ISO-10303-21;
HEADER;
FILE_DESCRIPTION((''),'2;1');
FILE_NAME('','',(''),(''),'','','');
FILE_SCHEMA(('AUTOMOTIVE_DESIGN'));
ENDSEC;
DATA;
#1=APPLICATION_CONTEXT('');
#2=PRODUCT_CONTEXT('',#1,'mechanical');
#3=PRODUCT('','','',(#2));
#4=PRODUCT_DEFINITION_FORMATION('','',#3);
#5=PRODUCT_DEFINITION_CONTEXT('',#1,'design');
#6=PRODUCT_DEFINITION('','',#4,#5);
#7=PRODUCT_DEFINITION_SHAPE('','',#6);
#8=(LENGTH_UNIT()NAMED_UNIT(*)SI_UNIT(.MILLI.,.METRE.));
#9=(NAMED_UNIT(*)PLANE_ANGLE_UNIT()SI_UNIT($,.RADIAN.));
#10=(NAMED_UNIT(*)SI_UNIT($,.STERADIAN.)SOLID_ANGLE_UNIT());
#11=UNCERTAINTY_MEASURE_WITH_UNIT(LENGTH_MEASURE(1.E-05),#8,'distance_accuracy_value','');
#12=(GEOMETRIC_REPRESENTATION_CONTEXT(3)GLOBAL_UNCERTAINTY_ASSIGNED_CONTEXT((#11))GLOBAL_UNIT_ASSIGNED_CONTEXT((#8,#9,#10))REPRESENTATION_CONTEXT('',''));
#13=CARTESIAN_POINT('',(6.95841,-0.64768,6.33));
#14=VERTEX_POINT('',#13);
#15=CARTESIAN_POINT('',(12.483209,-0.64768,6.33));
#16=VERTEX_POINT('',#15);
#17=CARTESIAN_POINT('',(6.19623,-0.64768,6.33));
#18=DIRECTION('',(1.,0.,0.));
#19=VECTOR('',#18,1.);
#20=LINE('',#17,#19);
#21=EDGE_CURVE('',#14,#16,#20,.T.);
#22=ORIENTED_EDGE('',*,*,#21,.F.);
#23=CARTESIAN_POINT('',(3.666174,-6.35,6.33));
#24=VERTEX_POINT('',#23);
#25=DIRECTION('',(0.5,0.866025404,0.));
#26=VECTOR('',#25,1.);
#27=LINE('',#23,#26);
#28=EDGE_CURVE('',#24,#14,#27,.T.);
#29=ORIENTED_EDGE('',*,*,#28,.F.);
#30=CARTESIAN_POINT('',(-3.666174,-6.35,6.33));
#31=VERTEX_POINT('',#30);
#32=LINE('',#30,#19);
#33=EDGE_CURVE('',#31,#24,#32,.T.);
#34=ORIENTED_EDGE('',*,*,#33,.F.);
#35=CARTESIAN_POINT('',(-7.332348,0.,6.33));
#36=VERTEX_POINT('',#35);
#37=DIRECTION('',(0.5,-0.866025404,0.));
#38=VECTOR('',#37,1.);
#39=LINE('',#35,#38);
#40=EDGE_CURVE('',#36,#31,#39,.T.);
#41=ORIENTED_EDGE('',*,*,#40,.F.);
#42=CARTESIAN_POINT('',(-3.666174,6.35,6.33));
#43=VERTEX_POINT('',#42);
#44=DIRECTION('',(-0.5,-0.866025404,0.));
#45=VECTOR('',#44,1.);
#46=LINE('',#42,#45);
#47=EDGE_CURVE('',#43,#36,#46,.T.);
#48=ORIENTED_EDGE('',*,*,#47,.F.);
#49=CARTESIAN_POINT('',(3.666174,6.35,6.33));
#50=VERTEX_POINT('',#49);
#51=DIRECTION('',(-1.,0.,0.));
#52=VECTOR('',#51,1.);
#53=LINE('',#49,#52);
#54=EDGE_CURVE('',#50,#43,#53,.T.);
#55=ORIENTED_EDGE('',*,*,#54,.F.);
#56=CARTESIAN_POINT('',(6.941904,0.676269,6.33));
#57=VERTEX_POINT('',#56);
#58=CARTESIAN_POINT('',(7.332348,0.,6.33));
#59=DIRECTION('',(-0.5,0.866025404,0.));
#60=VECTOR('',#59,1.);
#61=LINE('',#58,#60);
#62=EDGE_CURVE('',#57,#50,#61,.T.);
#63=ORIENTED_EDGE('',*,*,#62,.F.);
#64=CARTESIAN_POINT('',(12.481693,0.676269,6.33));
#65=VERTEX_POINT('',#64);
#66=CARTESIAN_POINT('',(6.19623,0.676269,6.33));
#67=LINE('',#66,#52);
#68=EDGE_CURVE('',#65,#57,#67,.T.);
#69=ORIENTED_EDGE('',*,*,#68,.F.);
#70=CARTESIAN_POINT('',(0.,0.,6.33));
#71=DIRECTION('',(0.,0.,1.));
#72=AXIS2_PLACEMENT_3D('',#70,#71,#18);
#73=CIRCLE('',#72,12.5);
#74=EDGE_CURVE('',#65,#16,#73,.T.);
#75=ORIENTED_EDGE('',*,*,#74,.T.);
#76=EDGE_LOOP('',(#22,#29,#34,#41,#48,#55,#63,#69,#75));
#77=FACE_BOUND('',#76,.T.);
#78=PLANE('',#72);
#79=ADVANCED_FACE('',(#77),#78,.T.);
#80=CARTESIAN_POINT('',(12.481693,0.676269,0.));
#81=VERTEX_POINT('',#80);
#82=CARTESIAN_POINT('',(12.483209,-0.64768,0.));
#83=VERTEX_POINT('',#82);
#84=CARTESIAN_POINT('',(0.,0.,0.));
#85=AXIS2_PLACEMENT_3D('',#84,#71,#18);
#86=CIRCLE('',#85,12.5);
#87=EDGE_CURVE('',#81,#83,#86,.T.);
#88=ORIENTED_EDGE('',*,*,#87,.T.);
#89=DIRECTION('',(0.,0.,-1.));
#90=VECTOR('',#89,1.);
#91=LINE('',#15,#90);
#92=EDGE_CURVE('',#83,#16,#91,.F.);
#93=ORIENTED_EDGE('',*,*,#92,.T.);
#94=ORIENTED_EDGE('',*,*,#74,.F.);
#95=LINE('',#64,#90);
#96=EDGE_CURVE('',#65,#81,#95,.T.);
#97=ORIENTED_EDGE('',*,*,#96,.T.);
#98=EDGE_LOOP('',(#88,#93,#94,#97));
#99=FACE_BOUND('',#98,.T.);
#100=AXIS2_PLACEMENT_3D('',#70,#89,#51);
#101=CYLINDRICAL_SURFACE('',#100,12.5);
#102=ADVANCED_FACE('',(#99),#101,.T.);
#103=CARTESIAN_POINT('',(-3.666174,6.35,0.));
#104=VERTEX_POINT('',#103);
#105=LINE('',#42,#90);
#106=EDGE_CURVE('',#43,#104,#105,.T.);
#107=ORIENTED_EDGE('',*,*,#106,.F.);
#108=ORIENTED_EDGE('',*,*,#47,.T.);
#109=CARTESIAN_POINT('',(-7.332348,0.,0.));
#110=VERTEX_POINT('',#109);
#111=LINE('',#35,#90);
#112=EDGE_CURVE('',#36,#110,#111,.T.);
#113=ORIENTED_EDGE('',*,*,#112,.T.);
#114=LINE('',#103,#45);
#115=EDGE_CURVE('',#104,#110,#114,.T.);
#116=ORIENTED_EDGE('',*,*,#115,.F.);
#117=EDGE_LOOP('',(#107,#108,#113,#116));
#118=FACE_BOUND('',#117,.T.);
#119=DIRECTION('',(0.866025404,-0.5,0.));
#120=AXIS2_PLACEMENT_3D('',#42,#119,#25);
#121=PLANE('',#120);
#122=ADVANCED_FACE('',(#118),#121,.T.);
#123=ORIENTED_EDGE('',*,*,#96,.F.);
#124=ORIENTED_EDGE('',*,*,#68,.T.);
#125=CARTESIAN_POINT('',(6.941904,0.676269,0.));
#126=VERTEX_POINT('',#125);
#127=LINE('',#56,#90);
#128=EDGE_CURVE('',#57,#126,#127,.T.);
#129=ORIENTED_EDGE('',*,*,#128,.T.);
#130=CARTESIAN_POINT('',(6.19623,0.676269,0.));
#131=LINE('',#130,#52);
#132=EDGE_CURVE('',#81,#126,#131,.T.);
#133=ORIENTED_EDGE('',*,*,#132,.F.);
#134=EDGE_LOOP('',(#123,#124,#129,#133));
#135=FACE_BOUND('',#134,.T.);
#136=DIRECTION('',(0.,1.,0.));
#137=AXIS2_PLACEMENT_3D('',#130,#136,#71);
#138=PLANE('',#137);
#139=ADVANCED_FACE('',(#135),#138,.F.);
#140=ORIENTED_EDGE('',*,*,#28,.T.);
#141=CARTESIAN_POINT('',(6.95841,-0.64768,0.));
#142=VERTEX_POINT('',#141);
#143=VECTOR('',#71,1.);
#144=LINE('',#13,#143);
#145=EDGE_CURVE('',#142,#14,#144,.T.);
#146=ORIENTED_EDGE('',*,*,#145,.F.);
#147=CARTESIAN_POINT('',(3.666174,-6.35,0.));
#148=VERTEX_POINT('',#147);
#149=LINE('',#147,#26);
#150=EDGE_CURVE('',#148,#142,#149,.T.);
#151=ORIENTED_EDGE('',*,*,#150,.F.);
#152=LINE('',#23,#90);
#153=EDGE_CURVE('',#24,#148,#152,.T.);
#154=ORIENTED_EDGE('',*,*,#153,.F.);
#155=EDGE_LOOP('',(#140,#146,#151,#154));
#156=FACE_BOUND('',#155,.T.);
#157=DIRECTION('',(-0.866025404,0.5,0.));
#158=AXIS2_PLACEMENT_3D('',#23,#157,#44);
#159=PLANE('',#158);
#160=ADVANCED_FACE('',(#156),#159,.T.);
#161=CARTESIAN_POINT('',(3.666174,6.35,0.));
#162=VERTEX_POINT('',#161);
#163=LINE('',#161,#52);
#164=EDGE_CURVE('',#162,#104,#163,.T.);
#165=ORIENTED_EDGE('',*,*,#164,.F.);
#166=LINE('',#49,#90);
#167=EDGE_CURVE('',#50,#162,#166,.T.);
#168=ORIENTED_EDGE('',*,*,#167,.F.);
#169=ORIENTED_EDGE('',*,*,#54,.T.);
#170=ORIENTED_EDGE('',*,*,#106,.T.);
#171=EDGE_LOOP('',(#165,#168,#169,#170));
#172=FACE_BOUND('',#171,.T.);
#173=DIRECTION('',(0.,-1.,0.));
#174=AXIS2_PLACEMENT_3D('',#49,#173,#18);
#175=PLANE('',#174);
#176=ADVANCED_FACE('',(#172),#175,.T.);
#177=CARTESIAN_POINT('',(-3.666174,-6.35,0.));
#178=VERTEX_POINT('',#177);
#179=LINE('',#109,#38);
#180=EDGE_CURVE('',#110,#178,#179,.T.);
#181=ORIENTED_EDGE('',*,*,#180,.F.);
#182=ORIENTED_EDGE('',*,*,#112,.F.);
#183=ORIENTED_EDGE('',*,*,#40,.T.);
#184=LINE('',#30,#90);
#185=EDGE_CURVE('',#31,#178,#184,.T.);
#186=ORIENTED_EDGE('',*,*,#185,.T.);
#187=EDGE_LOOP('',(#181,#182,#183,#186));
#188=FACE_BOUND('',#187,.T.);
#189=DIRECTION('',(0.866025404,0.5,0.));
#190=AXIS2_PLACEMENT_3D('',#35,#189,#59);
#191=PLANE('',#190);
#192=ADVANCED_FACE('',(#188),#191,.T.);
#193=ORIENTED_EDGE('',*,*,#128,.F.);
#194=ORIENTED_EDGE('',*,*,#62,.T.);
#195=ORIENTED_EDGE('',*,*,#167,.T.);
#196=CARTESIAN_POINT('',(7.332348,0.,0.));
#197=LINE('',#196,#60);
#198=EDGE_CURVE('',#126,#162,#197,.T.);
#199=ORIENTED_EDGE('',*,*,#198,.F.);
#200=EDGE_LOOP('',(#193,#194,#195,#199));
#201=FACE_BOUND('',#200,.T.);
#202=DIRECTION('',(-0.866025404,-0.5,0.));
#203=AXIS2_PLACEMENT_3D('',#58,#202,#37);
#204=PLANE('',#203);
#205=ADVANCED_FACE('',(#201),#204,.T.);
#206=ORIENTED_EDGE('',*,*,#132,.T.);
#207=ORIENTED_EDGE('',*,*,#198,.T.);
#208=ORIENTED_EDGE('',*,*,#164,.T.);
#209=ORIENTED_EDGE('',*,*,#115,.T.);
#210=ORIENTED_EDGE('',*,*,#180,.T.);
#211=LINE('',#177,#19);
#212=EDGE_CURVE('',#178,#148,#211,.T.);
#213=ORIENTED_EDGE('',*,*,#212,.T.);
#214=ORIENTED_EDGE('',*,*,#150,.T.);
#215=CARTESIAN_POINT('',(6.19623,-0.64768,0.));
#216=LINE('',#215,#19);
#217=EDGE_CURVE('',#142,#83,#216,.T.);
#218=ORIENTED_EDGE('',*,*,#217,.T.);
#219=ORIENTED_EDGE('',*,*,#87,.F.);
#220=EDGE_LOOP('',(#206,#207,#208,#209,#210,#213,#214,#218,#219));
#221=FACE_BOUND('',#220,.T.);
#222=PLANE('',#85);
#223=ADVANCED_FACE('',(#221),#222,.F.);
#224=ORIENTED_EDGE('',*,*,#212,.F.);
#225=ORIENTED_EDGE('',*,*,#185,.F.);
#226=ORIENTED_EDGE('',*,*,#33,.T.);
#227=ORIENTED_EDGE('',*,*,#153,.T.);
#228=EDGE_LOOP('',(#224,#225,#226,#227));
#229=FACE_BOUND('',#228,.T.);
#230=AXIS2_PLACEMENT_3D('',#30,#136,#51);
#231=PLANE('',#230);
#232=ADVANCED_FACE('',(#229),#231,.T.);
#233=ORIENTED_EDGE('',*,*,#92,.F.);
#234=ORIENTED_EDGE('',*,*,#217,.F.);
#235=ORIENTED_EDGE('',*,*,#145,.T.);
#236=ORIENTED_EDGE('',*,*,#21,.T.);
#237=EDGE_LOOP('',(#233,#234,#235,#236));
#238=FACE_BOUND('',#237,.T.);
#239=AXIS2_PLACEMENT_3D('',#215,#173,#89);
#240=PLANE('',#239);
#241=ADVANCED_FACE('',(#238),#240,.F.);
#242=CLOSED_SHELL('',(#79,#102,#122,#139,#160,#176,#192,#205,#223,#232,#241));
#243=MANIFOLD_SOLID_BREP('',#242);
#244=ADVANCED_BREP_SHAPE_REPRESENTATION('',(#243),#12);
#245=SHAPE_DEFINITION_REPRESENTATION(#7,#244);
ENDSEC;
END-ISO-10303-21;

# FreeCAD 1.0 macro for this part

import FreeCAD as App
import Part
import Sketcher

V = App.Vector
Q = App.Units.Quantity

doc = App.newDocument("Part")
body = doc.addObject("PartDesign::Body", "Body")

# Sketch on XY plane
sketch1 = body.newObject("Sketcher::SketchObject", "Sketch")
sketch1.AttachmentSupport = (doc.getObject("XY_Plane"), [""])
sketch1.MapMode = "FlatFace"
sketch1.addGeometry(Part.Circle(V(0, 0, 0), V(0, 0, 1), 12), False)
sketch1.addGeometry(Part.LineSegment(V(4, 6, 0), V(7, 0, 0)), False)
sketch1.addGeometry(Part.LineSegment(V(7, 0, 0), V(4, -6, 0)), False)
sketch1.addGeometry(Part.LineSegment(V(4, -6, 0), V(-4, -6, 0)), False)
sketch1.addGeometry(Part.LineSegment(V(-4, -6, 0), V(-7, 0, 0)), False)
sketch1.addGeometry(Part.LineSegment(V(-7, 0, 0), V(-4, 6, 0)), False)
sketch1.addGeometry(Part.LineSegment(V(-4, 6, 0), V(4, 6, 0)), False)
sketch1.addConstraint(Sketcher.Constraint("Coincident", 1, 2, 2, 1))
sketch1.addConstraint(Sketcher.Constraint("Coincident", 2, 2, 3, 1))
sketch1.addConstraint(Sketcher.Constraint("Coincident", 3, 2, 4, 1))
sketch1.addConstraint(Sketcher.Constraint("Coincident", 4, 2, 5, 1))
sketch1.addConstraint(Sketcher.Constraint("Coincident", 5, 2, 6, 1))
sketch1.addConstraint(Sketcher.Constraint("Coincident", 6, 2, 1, 1))
sketch1.addConstraint(Sketcher.Constraint("Horizontal", 3))
sketch1.addConstraint(Sketcher.Constraint("Horizontal", 6))
sketch1.addConstraint(Sketcher.Constraint("Coincident", 0, 3, -1, 1))
sketch1.addConstraint(Sketcher.Constraint("Symmetric", 1, 2, 4, 2, -1, 1))
sketch1.addConstraint(Sketcher.Constraint("Symmetric", 2, 2, 5, 2, -1, 1))
sketch1.addConstraint(Sketcher.Constraint("PointOnObject", 1, 2, -1))
sketch1.addConstraint(Sketcher.Constraint("Parallel", 1, 4))
sketch1.addConstraint(Sketcher.Constraint("Vertical", 3, 2, 5, 2))
sketch1.addConstraint(Sketcher.Constraint("Diameter", 0, 25.0))
sketch1.addConstraint(Sketcher.Constraint("Angle", 1, Q("-60 deg")))
sketch1.addConstraint(Sketcher.Constraint("DistanceY", 3, 2, 5, 2, 12.7))
sketch1.addConstraint(Sketcher.Constraint("DistanceX", 3, 2, 3, 1, 7.332348))
pad1 = body.newObject("PartDesign::Pad", "Pad")
pad1.Profile = sketch1
pad1.Length = 6.33

# Sketch on XY plane
sketch2 = body.newObject("Sketcher::SketchObject", "Sketch001")
sketch2.AttachmentSupport = (doc.getObject("XY_Plane"), [""])
sketch2.MapMode = "FlatFace"
sketch2.AttachmentOffset = App.Placement(V(0, 0, 6.33), App.Rotation())
sketch2.addGeometry(Part.LineSegment(V(6.2, 0.7, 0), V(6.2, -0.6, 0)), False)
sketch2.addGeometry(Part.LineSegment(V(6.2, -0.6, 0), V(14.7, -0.6, 0)), False)
sketch2.addGeometry(Part.LineSegment(V(14.7, -0.6, 0), V(14.7, 0.7, 0)), False)
sketch2.addGeometry(Part.LineSegment(V(14.7, 0.7, 0), V(6.2, 0.7, 0)), False)
sketch2.addConstraint(Sketcher.Constraint("Coincident", 0, 2, 1, 1))
sketch2.addConstraint(Sketcher.Constraint("Coincident", 1, 2, 2, 1))
sketch2.addConstraint(Sketcher.Constraint("Coincident", 2, 2, 3, 1))
sketch2.addConstraint(Sketcher.Constraint("Coincident", 3, 2, 0, 1))
sketch2.addConstraint(Sketcher.Constraint("Vertical", 0))
sketch2.addConstraint(Sketcher.Constraint("Horizontal", 1))
sketch2.addConstraint(Sketcher.Constraint("Vertical", 2))
sketch2.addConstraint(Sketcher.Constraint("Horizontal", 3))
sketch2.addConstraint(Sketcher.Constraint("DistanceY", 0, 2, 0, 1, 1.32395))
sketch2.addConstraint(Sketcher.Constraint("DistanceX", 1, 1, 1, 2, 8.461168))
sketch2.addConstraint(Sketcher.Constraint("DistanceX", -1, 1, 0, 2, 6.19623))
sketch2.addConstraint(Sketcher.Constraint("DistanceY", 0, 2, -1, 1, 0.64768))
pocket1 = body.newObject("PartDesign::Pocket", "Pocket")
pocket1.Profile = sketch2
pocket1.Type = "ThroughAll"

doc.recompute()
